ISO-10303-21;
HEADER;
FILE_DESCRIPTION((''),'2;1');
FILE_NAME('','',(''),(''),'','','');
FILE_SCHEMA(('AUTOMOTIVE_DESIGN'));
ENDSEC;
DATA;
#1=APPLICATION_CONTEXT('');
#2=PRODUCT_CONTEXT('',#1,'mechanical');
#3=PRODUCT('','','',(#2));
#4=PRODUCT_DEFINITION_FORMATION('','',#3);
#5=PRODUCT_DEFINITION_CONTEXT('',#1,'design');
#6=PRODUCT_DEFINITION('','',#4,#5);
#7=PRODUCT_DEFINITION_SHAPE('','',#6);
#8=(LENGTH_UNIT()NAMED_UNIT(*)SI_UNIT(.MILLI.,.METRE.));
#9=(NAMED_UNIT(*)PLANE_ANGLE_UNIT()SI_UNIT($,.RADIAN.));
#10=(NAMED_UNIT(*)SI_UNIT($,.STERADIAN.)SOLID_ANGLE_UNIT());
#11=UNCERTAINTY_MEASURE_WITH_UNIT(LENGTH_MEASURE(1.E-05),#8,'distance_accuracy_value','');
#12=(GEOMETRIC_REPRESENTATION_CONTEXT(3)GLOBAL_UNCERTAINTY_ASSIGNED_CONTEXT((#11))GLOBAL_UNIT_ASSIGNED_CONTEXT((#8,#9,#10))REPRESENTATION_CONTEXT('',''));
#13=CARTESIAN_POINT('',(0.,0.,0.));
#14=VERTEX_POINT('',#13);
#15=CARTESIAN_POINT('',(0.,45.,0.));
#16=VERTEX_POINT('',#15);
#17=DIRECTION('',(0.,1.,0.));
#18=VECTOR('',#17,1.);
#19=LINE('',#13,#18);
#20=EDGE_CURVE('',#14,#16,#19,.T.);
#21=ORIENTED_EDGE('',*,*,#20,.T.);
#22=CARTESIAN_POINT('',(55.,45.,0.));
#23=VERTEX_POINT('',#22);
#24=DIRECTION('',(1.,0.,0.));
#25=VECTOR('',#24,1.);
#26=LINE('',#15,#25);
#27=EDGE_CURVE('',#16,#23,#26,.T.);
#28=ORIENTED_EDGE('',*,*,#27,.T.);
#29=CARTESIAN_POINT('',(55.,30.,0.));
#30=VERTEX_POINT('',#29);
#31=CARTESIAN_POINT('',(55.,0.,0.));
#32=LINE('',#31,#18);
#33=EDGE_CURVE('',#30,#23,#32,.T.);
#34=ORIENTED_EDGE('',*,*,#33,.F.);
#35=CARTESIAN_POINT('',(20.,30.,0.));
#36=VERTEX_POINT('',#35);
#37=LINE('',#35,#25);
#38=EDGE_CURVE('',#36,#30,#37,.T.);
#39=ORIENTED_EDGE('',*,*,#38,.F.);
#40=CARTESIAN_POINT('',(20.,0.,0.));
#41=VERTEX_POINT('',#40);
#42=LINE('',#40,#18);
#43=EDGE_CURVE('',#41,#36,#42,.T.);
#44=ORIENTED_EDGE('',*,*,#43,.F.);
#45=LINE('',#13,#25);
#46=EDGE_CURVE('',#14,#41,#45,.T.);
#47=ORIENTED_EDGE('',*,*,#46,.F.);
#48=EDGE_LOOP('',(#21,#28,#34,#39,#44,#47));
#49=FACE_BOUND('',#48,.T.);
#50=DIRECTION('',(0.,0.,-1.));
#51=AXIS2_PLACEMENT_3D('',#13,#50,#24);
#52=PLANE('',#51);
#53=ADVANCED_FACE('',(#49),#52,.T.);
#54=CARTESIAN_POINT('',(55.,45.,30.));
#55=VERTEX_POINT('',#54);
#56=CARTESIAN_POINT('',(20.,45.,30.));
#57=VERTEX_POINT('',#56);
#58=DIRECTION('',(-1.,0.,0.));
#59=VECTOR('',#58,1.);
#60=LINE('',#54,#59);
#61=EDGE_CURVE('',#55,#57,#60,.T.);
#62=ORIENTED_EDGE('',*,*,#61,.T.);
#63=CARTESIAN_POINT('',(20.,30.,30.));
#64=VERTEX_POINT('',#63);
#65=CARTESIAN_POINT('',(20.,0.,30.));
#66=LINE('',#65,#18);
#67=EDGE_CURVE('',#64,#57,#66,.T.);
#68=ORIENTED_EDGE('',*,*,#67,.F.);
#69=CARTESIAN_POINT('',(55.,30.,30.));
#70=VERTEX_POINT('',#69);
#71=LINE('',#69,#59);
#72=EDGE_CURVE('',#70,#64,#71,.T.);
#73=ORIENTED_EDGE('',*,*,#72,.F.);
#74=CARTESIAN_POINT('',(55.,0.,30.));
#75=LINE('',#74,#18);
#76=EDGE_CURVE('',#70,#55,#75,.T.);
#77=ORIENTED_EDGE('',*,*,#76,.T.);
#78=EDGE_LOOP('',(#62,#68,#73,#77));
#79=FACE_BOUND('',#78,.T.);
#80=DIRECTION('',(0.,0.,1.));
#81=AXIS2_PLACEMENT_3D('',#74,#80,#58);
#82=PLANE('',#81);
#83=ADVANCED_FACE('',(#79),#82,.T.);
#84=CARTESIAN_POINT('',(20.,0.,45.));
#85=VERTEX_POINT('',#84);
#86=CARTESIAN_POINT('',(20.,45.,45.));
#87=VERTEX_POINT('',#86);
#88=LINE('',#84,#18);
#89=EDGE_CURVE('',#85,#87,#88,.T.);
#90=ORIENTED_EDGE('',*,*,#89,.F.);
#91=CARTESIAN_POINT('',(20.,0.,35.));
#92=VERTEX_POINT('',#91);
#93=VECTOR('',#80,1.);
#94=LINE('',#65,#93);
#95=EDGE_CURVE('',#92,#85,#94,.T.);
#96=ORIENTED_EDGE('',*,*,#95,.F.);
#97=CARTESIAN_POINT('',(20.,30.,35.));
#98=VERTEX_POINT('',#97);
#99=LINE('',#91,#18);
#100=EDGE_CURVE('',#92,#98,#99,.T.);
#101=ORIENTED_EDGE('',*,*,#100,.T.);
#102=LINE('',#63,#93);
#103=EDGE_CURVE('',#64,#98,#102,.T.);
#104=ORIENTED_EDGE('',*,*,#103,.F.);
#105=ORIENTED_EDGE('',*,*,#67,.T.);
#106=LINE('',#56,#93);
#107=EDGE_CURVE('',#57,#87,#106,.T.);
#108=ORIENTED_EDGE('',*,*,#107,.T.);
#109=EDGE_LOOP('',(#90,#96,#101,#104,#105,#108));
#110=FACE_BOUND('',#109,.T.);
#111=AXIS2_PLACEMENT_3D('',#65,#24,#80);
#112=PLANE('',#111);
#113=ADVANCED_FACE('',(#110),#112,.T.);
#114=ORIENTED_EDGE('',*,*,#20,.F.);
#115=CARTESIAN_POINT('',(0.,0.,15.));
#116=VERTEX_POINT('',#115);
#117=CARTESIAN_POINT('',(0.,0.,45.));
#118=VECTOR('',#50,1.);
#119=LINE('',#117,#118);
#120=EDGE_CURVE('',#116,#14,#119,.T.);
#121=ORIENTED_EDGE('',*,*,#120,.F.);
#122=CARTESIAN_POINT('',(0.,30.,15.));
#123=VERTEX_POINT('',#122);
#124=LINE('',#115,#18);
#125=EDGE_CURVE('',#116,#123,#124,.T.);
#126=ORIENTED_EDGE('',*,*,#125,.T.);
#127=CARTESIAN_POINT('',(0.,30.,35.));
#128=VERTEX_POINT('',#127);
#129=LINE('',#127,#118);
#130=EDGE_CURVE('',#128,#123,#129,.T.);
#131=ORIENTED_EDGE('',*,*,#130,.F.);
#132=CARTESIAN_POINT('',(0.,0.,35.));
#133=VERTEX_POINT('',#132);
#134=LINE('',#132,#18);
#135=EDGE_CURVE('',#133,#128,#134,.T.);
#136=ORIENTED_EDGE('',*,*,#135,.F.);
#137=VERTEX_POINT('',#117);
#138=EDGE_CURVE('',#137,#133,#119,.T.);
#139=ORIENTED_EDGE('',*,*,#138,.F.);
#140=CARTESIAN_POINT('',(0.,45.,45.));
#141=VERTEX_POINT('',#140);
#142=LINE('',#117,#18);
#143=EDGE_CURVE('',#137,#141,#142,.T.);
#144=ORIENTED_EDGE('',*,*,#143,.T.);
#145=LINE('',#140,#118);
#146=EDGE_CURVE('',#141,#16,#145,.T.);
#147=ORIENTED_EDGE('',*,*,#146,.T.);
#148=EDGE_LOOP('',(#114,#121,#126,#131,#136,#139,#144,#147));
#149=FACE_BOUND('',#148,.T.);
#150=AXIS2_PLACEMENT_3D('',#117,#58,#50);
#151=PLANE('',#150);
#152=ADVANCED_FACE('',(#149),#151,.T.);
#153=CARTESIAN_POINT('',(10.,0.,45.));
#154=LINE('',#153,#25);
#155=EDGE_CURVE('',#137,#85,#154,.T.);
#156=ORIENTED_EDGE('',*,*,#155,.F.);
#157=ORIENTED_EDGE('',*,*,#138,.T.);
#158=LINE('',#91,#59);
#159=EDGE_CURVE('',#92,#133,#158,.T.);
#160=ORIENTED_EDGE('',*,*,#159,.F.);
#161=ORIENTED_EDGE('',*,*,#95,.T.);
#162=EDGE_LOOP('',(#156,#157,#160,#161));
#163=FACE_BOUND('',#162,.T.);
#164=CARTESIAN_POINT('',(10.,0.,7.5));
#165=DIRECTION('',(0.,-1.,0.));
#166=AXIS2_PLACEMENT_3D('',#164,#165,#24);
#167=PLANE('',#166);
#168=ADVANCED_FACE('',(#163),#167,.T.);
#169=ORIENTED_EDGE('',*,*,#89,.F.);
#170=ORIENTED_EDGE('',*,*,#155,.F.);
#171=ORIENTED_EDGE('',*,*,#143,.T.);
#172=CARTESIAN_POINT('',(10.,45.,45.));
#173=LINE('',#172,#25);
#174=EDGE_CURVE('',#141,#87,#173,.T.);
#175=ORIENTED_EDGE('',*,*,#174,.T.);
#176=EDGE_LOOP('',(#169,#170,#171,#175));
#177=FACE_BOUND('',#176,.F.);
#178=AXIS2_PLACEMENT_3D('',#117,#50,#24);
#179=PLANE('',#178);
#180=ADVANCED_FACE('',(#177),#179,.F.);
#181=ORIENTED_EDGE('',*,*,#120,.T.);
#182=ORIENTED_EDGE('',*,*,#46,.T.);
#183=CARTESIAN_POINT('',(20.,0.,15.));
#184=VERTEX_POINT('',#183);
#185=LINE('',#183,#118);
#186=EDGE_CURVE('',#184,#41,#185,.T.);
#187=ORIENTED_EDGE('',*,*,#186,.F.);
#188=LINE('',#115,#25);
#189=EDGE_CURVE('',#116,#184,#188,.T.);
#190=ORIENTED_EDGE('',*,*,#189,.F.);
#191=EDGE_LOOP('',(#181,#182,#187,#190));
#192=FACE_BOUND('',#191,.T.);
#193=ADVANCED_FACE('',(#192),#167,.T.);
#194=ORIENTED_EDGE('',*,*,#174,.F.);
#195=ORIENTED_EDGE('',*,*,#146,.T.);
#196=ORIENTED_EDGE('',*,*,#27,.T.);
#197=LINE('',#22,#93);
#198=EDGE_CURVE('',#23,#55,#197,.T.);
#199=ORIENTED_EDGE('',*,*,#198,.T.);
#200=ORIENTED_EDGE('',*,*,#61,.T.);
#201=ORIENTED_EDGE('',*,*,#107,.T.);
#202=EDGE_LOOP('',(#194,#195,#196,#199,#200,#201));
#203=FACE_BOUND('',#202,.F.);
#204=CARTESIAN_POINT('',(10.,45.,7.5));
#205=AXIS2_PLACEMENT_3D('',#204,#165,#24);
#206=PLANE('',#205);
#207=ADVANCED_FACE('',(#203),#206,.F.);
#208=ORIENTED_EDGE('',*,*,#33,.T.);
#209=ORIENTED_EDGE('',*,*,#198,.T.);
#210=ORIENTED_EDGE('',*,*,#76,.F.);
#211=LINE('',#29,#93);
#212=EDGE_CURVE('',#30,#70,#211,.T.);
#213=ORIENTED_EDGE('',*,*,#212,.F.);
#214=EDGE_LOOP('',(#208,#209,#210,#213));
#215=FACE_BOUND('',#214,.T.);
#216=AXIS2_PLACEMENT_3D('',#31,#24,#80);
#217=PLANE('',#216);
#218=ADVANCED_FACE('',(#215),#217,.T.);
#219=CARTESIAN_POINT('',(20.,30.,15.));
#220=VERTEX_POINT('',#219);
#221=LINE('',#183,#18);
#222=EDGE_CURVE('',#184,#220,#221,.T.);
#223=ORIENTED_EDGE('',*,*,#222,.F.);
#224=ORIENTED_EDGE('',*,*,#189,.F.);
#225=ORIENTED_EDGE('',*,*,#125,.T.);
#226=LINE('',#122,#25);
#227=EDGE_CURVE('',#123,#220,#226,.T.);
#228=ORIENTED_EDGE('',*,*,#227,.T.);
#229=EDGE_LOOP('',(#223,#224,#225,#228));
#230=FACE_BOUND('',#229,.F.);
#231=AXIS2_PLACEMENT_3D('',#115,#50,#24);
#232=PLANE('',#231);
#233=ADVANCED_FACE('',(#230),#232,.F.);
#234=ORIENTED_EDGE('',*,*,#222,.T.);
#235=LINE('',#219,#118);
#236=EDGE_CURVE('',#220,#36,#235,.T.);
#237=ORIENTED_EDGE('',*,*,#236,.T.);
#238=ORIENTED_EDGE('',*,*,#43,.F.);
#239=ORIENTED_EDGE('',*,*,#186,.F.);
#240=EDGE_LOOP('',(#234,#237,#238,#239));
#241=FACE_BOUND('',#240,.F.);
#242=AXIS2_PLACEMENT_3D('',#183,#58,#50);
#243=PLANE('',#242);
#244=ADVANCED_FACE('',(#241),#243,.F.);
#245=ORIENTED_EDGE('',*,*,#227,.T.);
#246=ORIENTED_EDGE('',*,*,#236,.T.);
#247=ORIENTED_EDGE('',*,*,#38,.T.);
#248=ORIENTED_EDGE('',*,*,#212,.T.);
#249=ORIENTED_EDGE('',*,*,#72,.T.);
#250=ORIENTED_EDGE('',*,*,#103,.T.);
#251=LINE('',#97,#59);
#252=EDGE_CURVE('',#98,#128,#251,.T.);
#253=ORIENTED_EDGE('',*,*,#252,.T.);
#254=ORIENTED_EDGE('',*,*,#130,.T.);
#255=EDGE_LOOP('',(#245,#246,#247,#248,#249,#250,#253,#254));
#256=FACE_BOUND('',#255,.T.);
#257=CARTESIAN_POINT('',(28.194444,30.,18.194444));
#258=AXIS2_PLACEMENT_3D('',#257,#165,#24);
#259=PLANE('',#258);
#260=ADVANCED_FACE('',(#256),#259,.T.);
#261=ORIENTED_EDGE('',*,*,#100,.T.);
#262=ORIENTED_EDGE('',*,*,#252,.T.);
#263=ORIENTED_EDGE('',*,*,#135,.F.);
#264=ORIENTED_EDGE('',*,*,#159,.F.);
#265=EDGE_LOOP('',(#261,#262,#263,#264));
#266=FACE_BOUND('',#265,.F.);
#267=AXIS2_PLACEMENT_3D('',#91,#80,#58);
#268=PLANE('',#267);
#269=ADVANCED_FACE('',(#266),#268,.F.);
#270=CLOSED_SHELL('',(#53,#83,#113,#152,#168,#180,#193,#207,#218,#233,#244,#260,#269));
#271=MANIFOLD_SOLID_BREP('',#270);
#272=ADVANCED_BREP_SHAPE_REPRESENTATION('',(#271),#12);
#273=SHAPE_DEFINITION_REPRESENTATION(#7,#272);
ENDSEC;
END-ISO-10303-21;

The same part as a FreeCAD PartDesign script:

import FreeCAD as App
import Part
import Sketcher
from FreeCAD import Vector


def add_polygon(sketch, points):
    """Adds a closed chain of lines whose ends are joined by coincident constraints."""
    first, n = sketch.GeometryCount, len(points)
    for a, b in zip(points, points[1:] + points[:1]):
        sketch.addGeometry(Part.LineSegment(App.Vector(*a, 0), App.Vector(*b, 0)), False)
    for i in range(n):
        sketch.addConstraint(Sketcher.Constraint("Coincident", first + i, 2, first + (i + 1) % n, 1))

doc = App.newDocument("Part")
body = doc.addObject("PartDesign::Body", "Body")

# Sketch on XZ plane
sketch1 = doc.addObject("Sketcher::SketchObject", "Sketch")
body.addObject(sketch1)
sketch1.AttachmentSupport = (doc.XZ_Plane, [""])
sketch1.MapMode = "FlatFace"
add_polygon(sketch1, [(0, 0), (55, 0), (55, 30), (20, 30), (20, 45), (0, 45)])  # lines 0-5
sketch1.addConstraint(Sketcher.Constraint("Horizontal", 0))
sketch1.addConstraint(Sketcher.Constraint("Vertical", 1))
sketch1.addConstraint(Sketcher.Constraint("Horizontal", 2))
sketch1.addConstraint(Sketcher.Constraint("Vertical", 3))
sketch1.addConstraint(Sketcher.Constraint("Horizontal", 4))
sketch1.addConstraint(Sketcher.Constraint("Vertical", 5))
sketch1.addConstraint(Sketcher.Constraint("Coincident", 5, 2, -1, 1))
sketch1.addConstraint(Sketcher.Constraint("DistanceX", 0, 1, 0, 2, 55.0))
sketch1.addConstraint(Sketcher.Constraint("DistanceX", 2, 2, 2, 1, 35.0))
sketch1.addConstraint(Sketcher.Constraint("DistanceY", 1, 1, 1, 2, 30.0))
sketch1.addConstraint(Sketcher.Constraint("DistanceY", 3, 1, 3, 2, 15.0))
pad1 = doc.addObject("PartDesign::Pad", "Pad")
body.addObject(pad1)
pad1.Profile = sketch1
pad1.Length = 45
pad1.Reversed = True

# Sketch on XZ plane
sketch2 = doc.addObject("Sketcher::SketchObject", "Sketch001")
body.addObject(sketch2)
sketch2.AttachmentSupport = (doc.XZ_Plane, [""])
sketch2.MapMode = "FlatFace"
add_polygon(sketch2, [(0, 35), (0, 15), (20, 15), (20, 0), (55, 0), (55, 30), (20, 30), (20, 35)])  # lines 0-7
sketch2.addConstraint(Sketcher.Constraint("Vertical", 0))
sketch2.addConstraint(Sketcher.Constraint("Horizontal", 1))
sketch2.addConstraint(Sketcher.Constraint("Vertical", 2))
sketch2.addConstraint(Sketcher.Constraint("Horizontal", 3))
sketch2.addConstraint(Sketcher.Constraint("Vertical", 4))
sketch2.addConstraint(Sketcher.Constraint("Horizontal", 5))
sketch2.addConstraint(Sketcher.Constraint("Vertical", 6))
sketch2.addConstraint(Sketcher.Constraint("Horizontal", 7))
sketch2.addConstraint(Sketcher.Constraint("PointOnObject", 0, 2, -2))
sketch2.addConstraint(Sketcher.Constraint("PointOnObject", 2, 2, -1))
sketch2.addConstraint(Sketcher.Constraint("Vertical", 2, 2, 5, 2))
sketch2.addConstraint(Sketcher.Constraint("Equal", 7, 0))
sketch2.addConstraint(Sketcher.Constraint("DistanceX", 1, 1, 1, 2, 20.0))
sketch2.addConstraint(Sketcher.Constraint("DistanceX", 3, 1, 3, 2, 35.0))
sketch2.addConstraint(Sketcher.Constraint("DistanceY", 2, 2, 2, 1, 15.0))
sketch2.addConstraint(Sketcher.Constraint("DistanceY", 4, 1, 4, 2, 30.0))
pocket1 = doc.addObject("PartDesign::Pocket", "Pocket")
body.addObject(pocket1)
pocket1.Profile = sketch2
pocket1.Length = 30

doc.recompute()
